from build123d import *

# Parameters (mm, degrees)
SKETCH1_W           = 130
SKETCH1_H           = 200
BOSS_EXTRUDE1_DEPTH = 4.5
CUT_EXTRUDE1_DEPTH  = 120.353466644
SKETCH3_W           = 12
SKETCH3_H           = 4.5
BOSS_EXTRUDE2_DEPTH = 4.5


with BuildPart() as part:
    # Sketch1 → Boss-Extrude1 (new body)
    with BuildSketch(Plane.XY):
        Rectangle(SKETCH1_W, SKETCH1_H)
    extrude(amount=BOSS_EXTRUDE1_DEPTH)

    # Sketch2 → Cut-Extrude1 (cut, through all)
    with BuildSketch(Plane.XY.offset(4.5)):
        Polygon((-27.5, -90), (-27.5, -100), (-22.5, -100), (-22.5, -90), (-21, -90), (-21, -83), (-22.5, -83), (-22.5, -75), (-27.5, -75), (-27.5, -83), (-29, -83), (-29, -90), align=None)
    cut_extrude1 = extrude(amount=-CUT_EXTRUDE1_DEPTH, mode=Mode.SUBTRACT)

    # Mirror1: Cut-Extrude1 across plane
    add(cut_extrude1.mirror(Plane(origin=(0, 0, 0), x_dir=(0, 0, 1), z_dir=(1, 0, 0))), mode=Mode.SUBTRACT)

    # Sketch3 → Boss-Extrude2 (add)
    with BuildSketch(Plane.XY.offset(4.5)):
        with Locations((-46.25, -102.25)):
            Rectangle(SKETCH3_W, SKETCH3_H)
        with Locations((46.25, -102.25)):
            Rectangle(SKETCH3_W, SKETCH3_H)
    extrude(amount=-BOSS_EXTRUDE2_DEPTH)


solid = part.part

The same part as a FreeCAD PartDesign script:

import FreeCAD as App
import Part
import Sketcher
from FreeCAD import Vector
Q = App.Units.Quantity

doc = App.newDocument("Part")
body = doc.addObject("PartDesign::Body", "Body")

# Sketch on XY plane
sketch1 = doc.addObject("Sketcher::SketchObject", "Sketch")
body.addObject(sketch1)
sketch1.AttachmentSupport = (doc.XY_Plane, [""])
sketch1.MapMode = "FlatFace"
sketch1.addGeometry([
    Part.LineSegment(Vector(-65, 100, 0), Vector(-65, -100, 0)),
    Part.LineSegment(Vector(-65, -100, 0), Vector(65, -100, 0)),
    Part.LineSegment(Vector(65, -100, 0), Vector(65, 100, 0)),
    Part.LineSegment(Vector(65, 100, 0), Vector(-65, 100, 0)),
], False)
sketch1.addConstraint([
    Sketcher.Constraint("Coincident", 0, 2, 1, 1),
    Sketcher.Constraint("Coincident", 1, 2, 2, 1),
    Sketcher.Constraint("Coincident", 2, 2, 3, 1),
    Sketcher.Constraint("Coincident", 3, 2, 0, 1),
    Sketcher.Constraint("Vertical", 0),
    Sketcher.Constraint("Horizontal", 1),
    Sketcher.Constraint("Vertical", 2),
    Sketcher.Constraint("Horizontal", 3),
    Sketcher.Constraint("Symmetric", 0, 2, 2, 2, -1, 1),
    Sketcher.Constraint("DistanceX", 1, 1, 1, 2, Q("130 mm")),
    Sketcher.Constraint("DistanceY", 0, 2, 0, 1, Q("200 mm")),
])
pad1 = doc.addObject("PartDesign::Pad", "Pad")
body.addObject(pad1)
pad1.Profile = sketch1
pad1.Length = 4.5

# Sketch on XY plane
sketch2 = doc.addObject("Sketcher::SketchObject", "Sketch001")
body.addObject(sketch2)
sketch2.AttachmentSupport = (doc.XY_Plane, [""])
sketch2.MapMode = "FlatFace"
sketch2.AttachmentOffset = App.Placement(Vector(0, 0, 4.5), App.Rotation())
sketch2.addGeometry([
    Part.LineSegment(Vector(-27.5, -90, 0), Vector(-27.5, -100, 0)),  # 0
    Part.LineSegment(Vector(-27.5, -100, 0), Vector(-22.5, -100, 0)),  # 1
    Part.LineSegment(Vector(-22.5, -100, 0), Vector(-22.5, -90, 0)),  # 2
    Part.LineSegment(Vector(-22.5, -90, 0), Vector(-21, -90, 0)),  # 3
    Part.LineSegment(Vector(-21, -90, 0), Vector(-21, -83, 0)),  # 4
    Part.LineSegment(Vector(-21, -83, 0), Vector(-22.5, -83, 0)),  # 5
    Part.LineSegment(Vector(-22.5, -83, 0), Vector(-22.5, -75, 0)),  # 6
    Part.LineSegment(Vector(-22.5, -75, 0), Vector(-27.5, -75, 0)),  # 7
    Part.LineSegment(Vector(-27.5, -75, 0), Vector(-27.5, -83, 0)),  # 8
    Part.LineSegment(Vector(-27.5, -83, 0), Vector(-29, -83, 0)),  # 9
    Part.LineSegment(Vector(-29, -83, 0), Vector(-29, -90, 0)),  # 10
    Part.LineSegment(Vector(-29, -90, 0), Vector(-27.5, -90, 0)),  # 11
], False)
sketch2.addConstraint([
    Sketcher.Constraint("Coincident", 0, 2, 1, 1),
    Sketcher.Constraint("Coincident", 1, 2, 2, 1),
    Sketcher.Constraint("Coincident", 2, 2, 3, 1),
    Sketcher.Constraint("Coincident", 3, 2, 4, 1),
    Sketcher.Constraint("Coincident", 4, 2, 5, 1),
    Sketcher.Constraint("Coincident", 5, 2, 6, 1),
    Sketcher.Constraint("Coincident", 6, 2, 7, 1),
    Sketcher.Constraint("Coincident", 7, 2, 8, 1),
    Sketcher.Constraint("Coincident", 8, 2, 9, 1),
    Sketcher.Constraint("Coincident", 9, 2, 10, 1),
    Sketcher.Constraint("Coincident", 10, 2, 11, 1),
    Sketcher.Constraint("Coincident", 11, 2, 0, 1),
    Sketcher.Constraint("Vertical", 0),
    Sketcher.Constraint("Horizontal", 1),
    Sketcher.Constraint("Vertical", 2),
    Sketcher.Constraint("Horizontal", 3),
    Sketcher.Constraint("Vertical", 4),
    Sketcher.Constraint("Horizontal", 5),
    Sketcher.Constraint("Vertical", 6),
    Sketcher.Constraint("Horizontal", 7),
    Sketcher.Constraint("Vertical", 8),
    Sketcher.Constraint("Horizontal", 9),
    Sketcher.Constraint("Vertical", 10),
    Sketcher.Constraint("Horizontal", 11),
    Sketcher.Constraint("Horizontal", 5, 2, 8, 2),
    Sketcher.Constraint("Horizontal", 3, 2, 10, 2),
    Sketcher.Constraint("Vertical", 2, 2, 5, 2),
    Sketcher.Constraint("Vertical", 0, 2, 7, 2),
    Sketcher.Constraint("Equal", 5, 9),
    Sketcher.Constraint("DistanceX", 1, 1, 1, 2, Q("5 mm")),
    Sketcher.Constraint("DistanceY", 0, 2, 0, 1, Q("10 mm")),
    Sketcher.Constraint("DistanceY", 4, 1, 4, 2, Q("7 mm")),
    Sketcher.Constraint("DistanceY", 6, 1, 6, 2, Q("8 mm")),
    Sketcher.Constraint("DistanceX", 3, 1, 3, 2, Q("1.5 mm")),
    Sketcher.Constraint("DistanceY", 0, 2, -1, 1, Q("100 mm")),
    Sketcher.Constraint("DistanceX", 3, 2, -1, 1, Q("21 mm")),
])
pocket1 = doc.addObject("PartDesign::Pocket", "Pocket")
body.addObject(pocket1)
pocket1.Profile = sketch2
pocket1.Type = "ThroughAll"
doc.recompute()

mirrored = doc.addObject("PartDesign::Mirrored", "Mirrored")
body.addObject(mirrored)
mirrored.Originals = [pocket1]
mirrored.MirrorPlane = (doc.YZ_Plane, [""])
body.Tip = mirrored

# Sketch on XY plane
sketch3 = doc.addObject("Sketcher::SketchObject", "Sketch002")
body.addObject(sketch3)
sketch3.AttachmentSupport = (doc.XY_Plane, [""])
sketch3.MapMode = "FlatFace"
sketch3.AttachmentOffset = App.Placement(Vector(0, 0, 4.5), App.Rotation())
sketch3.addGeometry([
    Part.LineSegment(Vector(-52.25, -100, 0), Vector(-52.25, -104.5, 0)),  # 0
    Part.LineSegment(Vector(-52.25, -104.5, 0), Vector(-40.25, -104.5, 0)),  # 1
    Part.LineSegment(Vector(-40.25, -104.5, 0), Vector(-40.25, -100, 0)),  # 2
    Part.LineSegment(Vector(-40.25, -100, 0), Vector(-52.25, -100, 0)),  # 3
    Part.LineSegment(Vector(40.25, -100, 0), Vector(40.25, -104.5, 0)),  # 4
    Part.LineSegment(Vector(40.25, -104.5, 0), Vector(52.25, -104.5, 0)),  # 5
    Part.LineSegment(Vector(52.25, -104.5, 0), Vector(52.25, -100, 0)),  # 6
    Part.LineSegment(Vector(52.25, -100, 0), Vector(40.25, -100, 0)),  # 7
], False)
sketch3.addConstraint([
    Sketcher.Constraint("Coincident", 0, 2, 1, 1),
    Sketcher.Constraint("Coincident", 1, 2, 2, 1),
    Sketcher.Constraint("Coincident", 2, 2, 3, 1),
    Sketcher.Constraint("Coincident", 3, 2, 0, 1),
    Sketcher.Constraint("Coincident", 4, 2, 5, 1),
    Sketcher.Constraint("Coincident", 5, 2, 6, 1),
    Sketcher.Constraint("Coincident", 6, 2, 7, 1),
    Sketcher.Constraint("Coincident", 7, 2, 4, 1),
    Sketcher.Constraint("Vertical", 0),
    Sketcher.Constraint("Horizontal", 1),
    Sketcher.Constraint("Vertical", 2),
    Sketcher.Constraint("Horizontal", 3),
    Sketcher.Constraint("Vertical", 4),
    Sketcher.Constraint("Horizontal", 5),
    Sketcher.Constraint("Vertical", 6),
    Sketcher.Constraint("Horizontal", 7),
    Sketcher.Constraint("Symmetric", 1, 2, 4, 2, -2),
    Sketcher.Constraint("Symmetric", 3, 2, 6, 2, -2),
    Sketcher.Constraint("DistanceX", 1, 1, 1, 2, Q("12 mm")),
    Sketcher.Constraint("DistanceY", 0, 2, 0, 1, Q("4.5 mm")),
    Sketcher.Constraint("DistanceY", 2, 2, -1, 1, Q("100 mm")),
    Sketcher.Constraint("DistanceX", 1, 2, 4, 2, Q("80.5 mm")),
])
pad2 = doc.addObject("PartDesign::Pad", "Pad001")
body.addObject(pad2)
pad2.Profile = sketch3
pad2.Length = 4.5
pad2.Reversed = True

doc.recompute()
